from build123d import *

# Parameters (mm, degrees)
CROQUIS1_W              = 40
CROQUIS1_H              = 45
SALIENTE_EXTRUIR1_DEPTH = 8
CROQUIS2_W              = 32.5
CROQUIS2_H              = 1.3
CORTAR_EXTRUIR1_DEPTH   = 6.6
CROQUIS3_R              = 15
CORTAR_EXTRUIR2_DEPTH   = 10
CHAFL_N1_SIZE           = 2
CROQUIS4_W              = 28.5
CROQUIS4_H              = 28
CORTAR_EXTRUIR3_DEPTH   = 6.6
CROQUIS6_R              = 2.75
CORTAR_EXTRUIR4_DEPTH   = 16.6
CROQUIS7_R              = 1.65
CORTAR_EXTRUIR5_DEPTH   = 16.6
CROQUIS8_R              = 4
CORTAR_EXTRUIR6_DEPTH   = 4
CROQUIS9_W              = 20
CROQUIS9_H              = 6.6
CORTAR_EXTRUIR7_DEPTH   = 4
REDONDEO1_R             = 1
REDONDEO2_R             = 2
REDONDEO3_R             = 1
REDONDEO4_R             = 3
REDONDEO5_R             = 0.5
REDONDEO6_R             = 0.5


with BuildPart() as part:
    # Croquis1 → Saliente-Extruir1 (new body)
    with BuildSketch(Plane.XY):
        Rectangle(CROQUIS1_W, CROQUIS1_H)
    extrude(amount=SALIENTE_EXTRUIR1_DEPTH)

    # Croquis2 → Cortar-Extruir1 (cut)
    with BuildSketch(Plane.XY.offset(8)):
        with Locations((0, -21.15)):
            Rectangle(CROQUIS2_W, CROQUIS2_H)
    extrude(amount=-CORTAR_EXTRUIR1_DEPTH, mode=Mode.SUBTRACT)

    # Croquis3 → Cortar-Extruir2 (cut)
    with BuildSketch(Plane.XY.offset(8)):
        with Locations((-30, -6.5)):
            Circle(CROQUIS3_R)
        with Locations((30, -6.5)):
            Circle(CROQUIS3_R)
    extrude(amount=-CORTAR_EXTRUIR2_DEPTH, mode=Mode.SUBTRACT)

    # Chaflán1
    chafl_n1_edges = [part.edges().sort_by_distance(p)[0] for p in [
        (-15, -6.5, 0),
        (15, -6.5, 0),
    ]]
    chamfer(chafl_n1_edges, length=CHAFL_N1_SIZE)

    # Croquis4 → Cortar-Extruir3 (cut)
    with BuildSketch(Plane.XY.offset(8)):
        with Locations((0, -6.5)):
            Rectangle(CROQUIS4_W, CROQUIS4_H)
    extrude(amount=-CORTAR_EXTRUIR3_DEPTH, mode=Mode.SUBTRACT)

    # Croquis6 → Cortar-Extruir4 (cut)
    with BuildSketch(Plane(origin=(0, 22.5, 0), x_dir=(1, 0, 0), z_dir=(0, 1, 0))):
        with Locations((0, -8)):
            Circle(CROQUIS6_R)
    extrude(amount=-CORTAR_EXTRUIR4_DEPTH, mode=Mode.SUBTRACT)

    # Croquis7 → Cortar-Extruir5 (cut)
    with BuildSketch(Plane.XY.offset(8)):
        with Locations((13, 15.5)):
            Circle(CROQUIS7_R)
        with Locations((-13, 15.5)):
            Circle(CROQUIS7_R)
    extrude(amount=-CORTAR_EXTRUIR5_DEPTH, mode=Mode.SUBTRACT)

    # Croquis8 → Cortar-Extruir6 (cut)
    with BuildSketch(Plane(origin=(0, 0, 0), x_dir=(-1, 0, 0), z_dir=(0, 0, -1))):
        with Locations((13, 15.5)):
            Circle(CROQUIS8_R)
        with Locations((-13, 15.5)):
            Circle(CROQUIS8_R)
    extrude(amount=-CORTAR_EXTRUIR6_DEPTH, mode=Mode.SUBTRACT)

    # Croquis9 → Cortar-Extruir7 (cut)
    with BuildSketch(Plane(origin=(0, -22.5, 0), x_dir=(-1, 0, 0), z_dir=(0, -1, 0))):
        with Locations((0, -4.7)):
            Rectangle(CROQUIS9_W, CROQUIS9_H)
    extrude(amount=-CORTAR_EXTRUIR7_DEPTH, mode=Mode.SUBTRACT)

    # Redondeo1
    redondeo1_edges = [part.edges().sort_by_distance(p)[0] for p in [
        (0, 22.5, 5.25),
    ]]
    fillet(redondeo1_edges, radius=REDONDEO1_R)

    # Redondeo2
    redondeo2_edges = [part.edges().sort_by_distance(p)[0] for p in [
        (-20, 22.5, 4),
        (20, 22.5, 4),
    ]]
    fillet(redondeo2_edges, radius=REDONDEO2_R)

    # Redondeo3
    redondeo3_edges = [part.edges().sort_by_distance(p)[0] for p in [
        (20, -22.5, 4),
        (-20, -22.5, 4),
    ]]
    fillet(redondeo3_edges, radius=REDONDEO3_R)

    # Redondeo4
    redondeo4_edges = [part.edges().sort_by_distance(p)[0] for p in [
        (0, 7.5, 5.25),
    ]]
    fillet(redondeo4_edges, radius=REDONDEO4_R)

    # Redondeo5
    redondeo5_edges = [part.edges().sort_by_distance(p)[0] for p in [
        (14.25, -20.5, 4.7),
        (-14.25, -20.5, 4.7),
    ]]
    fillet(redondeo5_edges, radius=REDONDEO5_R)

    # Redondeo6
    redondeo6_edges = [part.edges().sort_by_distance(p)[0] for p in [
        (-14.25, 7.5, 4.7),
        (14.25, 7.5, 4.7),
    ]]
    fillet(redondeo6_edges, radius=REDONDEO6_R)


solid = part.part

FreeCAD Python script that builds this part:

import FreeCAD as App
import Part
import Sketcher
from FreeCAD import Vector
Q = App.Units.Quantity


def edges_at(feature, points):
    """Names of the edges that pass closest to the given points."""
    edges = feature.Shape.Edges
    near = lambda p: min(range(len(edges)), key=lambda i: edges[i].distToShape(Part.Vertex(*p))[0])
    return sorted({f"Edge{near(p) + 1}" for p in points})


def add_polygon(sketch, points):
    """Adds a closed chain of lines whose ends are joined by coincident constraints."""
    first, n = sketch.GeometryCount, len(points)
    for a, b in zip(points, points[1:] + points[:1]):
        sketch.addGeometry(Part.LineSegment(App.Vector(*a, 0), App.Vector(*b, 0)), False)
    for i in range(n):
        sketch.addConstraint(Sketcher.Constraint("Coincident", first + i, 2, first + (i + 1) % n, 1))

doc = App.newDocument("Part")
body = doc.addObject("PartDesign::Body", "Body")

# Sketch on XY plane
sketch1 = body.newObject("Sketcher::SketchObject", "Sketch")
sketch1.AttachmentSupport = (doc.getObject("XY_Plane"), [""])
sketch1.MapMode = "FlatFace"
add_polygon(sketch1, [(-20, 22), (-20, -22), (20, -22), (20, 22)])  # lines 0-3
sketch1.addConstraint([
    Sketcher.Constraint("Vertical", 0),
    Sketcher.Constraint("Horizontal", 1),
    Sketcher.Constraint("Vertical", 2),
    Sketcher.Constraint("Horizontal", 3),
    Sketcher.Constraint("Symmetric", 0, 2, 2, 2, -1, 1),
    Sketcher.Constraint("DistanceX", 1, 1, 1, 2, Q("40 mm")),
    Sketcher.Constraint("DistanceY", 0, 2, 0, 1, Q("45 mm")),
])
pad1 = body.newObject("PartDesign::Pad", "Pad")
pad1.Profile = sketch1
pad1.Length = 8

# Sketch on XY plane
sketch2 = body.newObject("Sketcher::SketchObject", "Sketch001")
sketch2.AttachmentSupport = (doc.getObject("XY_Plane"), [""])
sketch2.MapMode = "FlatFace"
sketch2.AttachmentOffset = App.Placement(Vector(0, 0, 8), App.Rotation())
add_polygon(sketch2, [(-16.2, -20.5), (-16.2, -21.8), (16.2, -21.8), (16.2, -20.5)])  # lines 0-3
sketch2.addConstraint([
    Sketcher.Constraint("Vertical", 0),
    Sketcher.Constraint("Horizontal", 1),
    Sketcher.Constraint("Vertical", 2),
    Sketcher.Constraint("Horizontal", 3),
    Sketcher.Constraint("DistanceX", 1, 1, 1, 2, Q("32.5 mm")),
    Sketcher.Constraint("DistanceY", 0, 2, 0, 1, Q("1.3 mm")),
    Sketcher.Constraint("DistanceY", 0, 2, -1, 1, Q("21.8 mm")),
    Sketcher.Constraint("DistanceX", 0, 2, -1, 1, Q("16.25 mm")),
])
pocket1 = body.newObject("PartDesign::Pocket", "Pocket")
pocket1.Profile = sketch2
pocket1.Length = 6.6

# Sketch on XY plane
sketch3 = body.newObject("Sketcher::SketchObject", "Sketch002")
sketch3.AttachmentSupport = (doc.getObject("XY_Plane"), [""])
sketch3.MapMode = "FlatFace"
sketch3.AttachmentOffset = App.Placement(Vector(0, 0, 8), App.Rotation())
sketch3.addGeometry([
    Part.Circle(Vector(-30, -6, 0), Vector(0, 0, 1), 15),
    Part.Circle(Vector(30, -6, 0), Vector(0, 0, 1), 15),
], False)
sketch3.addConstraint([
    Sketcher.Constraint("Equal", 0, 1),
    Sketcher.Constraint("Symmetric", 0, 3, 1, 3, -2),
    Sketcher.Constraint("Diameter", 0, Q("30 mm")),
    Sketcher.Constraint("DistanceX", 0, 3, -1, 1, Q("30 mm")),
    Sketcher.Constraint("DistanceY", 0, 3, -1, 1, Q("6.5 mm")),
])
pocket2 = body.newObject("PartDesign::Pocket", "Pocket001")
pocket2.Profile = sketch3
pocket2.Length = 10
doc.recompute()

chamfer = body.newObject("PartDesign::Chamfer", "Chamfer")
chamfer.Base = (pocket2, edges_at(pocket2, [(-15, -6.5, 0), (15, -6.5, 0)]))
chamfer.Size = 2

# Sketch on XY plane
sketch4 = body.newObject("Sketcher::SketchObject", "Sketch003")
sketch4.AttachmentSupport = (doc.getObject("XY_Plane"), [""])
sketch4.MapMode = "FlatFace"
sketch4.AttachmentOffset = App.Placement(Vector(0, 0, 8), App.Rotation())
add_polygon(sketch4, [(-14, 8), (-14, -20), (14, -20), (14, 8)])  # lines 0-3
sketch4.addConstraint([
    Sketcher.Constraint("Vertical", 0),
    Sketcher.Constraint("Horizontal", 1),
    Sketcher.Constraint("Vertical", 2),
    Sketcher.Constraint("Horizontal", 3),
    Sketcher.Constraint("DistanceY", 0, 2, 0, 1, Q("28 mm")),
    Sketcher.Constraint("DistanceX", 1, 1, 1, 2, Q("28.5 mm")),
    Sketcher.Constraint("DistanceY", 0, 2, -1, 1, Q("20.5 mm")),
    Sketcher.Constraint("DistanceX", 0, 2, -1, 1, Q("14.25 mm")),
])
pocket3 = body.newObject("PartDesign::Pocket", "Pocket002")
pocket3.Profile = sketch4
pocket3.Length = 6.6

# Sketch on XZ plane
sketch5 = body.newObject("Sketcher::SketchObject", "Sketch004")
sketch5.AttachmentSupport = (doc.getObject("XZ_Plane"), [""])
sketch5.MapMode = "FlatFace"
sketch5.AttachmentOffset = App.Placement(Vector(0, 0, -22.5), App.Rotation())
sketch5.addGeometry(Part.Circle(Vector(0, 8, 0), Vector(0, 0, 1), 2.8), False)
sketch5.addConstraint([
    Sketcher.Constraint("PointOnObject", 0, 3, -2),
    Sketcher.Constraint("Diameter", 0, Q("5.5 mm")),
    Sketcher.Constraint("DistanceY", -1, 1, 0, 3, Q("8 mm")),
])
pocket4 = body.newObject("PartDesign::Pocket", "Pocket003")
pocket4.Profile = sketch5
pocket4.Length = 16.6
pocket4.Reversed = True

# Sketch on XY plane
sketch6 = body.newObject("Sketcher::SketchObject", "Sketch005")
sketch6.AttachmentSupport = (doc.getObject("XY_Plane"), [""])
sketch6.MapMode = "FlatFace"
sketch6.AttachmentOffset = App.Placement(Vector(0, 0, 8), App.Rotation())
sketch6.addGeometry([
    Part.Circle(Vector(13, 15.5, 0), Vector(0, 0, 1), 1.6),
    Part.Circle(Vector(-13, 15.5, 0), Vector(0, 0, 1), 1.6),
], False)
sketch6.addConstraint([
    Sketcher.Constraint("Equal", 0, 1),
    Sketcher.Constraint("Symmetric", 0, 3, 1, 3, -2),
    Sketcher.Constraint("Diameter", 0, Q("3.3 mm")),
    Sketcher.Constraint("DistanceX", -1, 1, 0, 3, Q("13 mm")),
    Sketcher.Constraint("DistanceY", -1, 1, 0, 3, Q("15.5 mm")),
])
pocket5 = body.newObject("PartDesign::Pocket", "Pocket004")
pocket5.Profile = sketch6
pocket5.Length = 16.6

# Sketch on XY plane
sketch7 = body.newObject("Sketcher::SketchObject", "Sketch006")
sketch7.AttachmentSupport = (doc.getObject("XY_Plane"), [""])
sketch7.MapMode = "FlatFace"
sketch7.addGeometry([
    Part.Circle(Vector(-13, 15.5, 0), Vector(0, 0, 1), 4),
    Part.Circle(Vector(13, 15.5, 0), Vector(0, 0, 1), 4),
], False)
sketch7.addConstraint([
    Sketcher.Constraint("Equal", 0, 1),
    Sketcher.Constraint("Symmetric", 0, 3, 1, 3, -2),
    Sketcher.Constraint("Diameter", 0, Q("8 mm")),
    Sketcher.Constraint("DistanceX", 0, 3, -1, 1, Q("13 mm")),
    Sketcher.Constraint("DistanceY", -1, 1, 0, 3, Q("15.5 mm")),
])
pocket6 = body.newObject("PartDesign::Pocket", "Pocket005")
pocket6.Profile = sketch7
pocket6.Length = 4
pocket6.Reversed = True

# Sketch on XZ plane
sketch8 = body.newObject("Sketcher::SketchObject", "Sketch007")
sketch8.AttachmentSupport = (doc.getObject("XZ_Plane"), [""])
sketch8.MapMode = "FlatFace"
sketch8.AttachmentOffset = App.Placement(Vector(0, 0, 22.5), App.Rotation())
add_polygon(sketch8, [(10, 1), (10, 8), (-10, 8), (-10, 1)])  # lines 0-3
sketch8.addConstraint([
    Sketcher.Constraint("Vertical", 0),
    Sketcher.Constraint("Horizontal", 1),
    Sketcher.Constraint("Vertical", 2),
    Sketcher.Constraint("Horizontal", 3),
    Sketcher.Constraint("DistanceX", 1, 2, 1, 1, Q("20 mm")),
    Sketcher.Constraint("DistanceY", 0, 1, 0, 2, Q("6.6 mm")),
    Sketcher.Constraint("DistanceX", -1, 1, 0, 2, Q("10 mm")),
    Sketcher.Constraint("DistanceY", -1, 1, 0, 2, Q("8 mm")),
])
pocket7 = body.newObject("PartDesign::Pocket", "Pocket006")
pocket7.Profile = sketch8
pocket7.Length = 4
doc.recompute()

fillet = body.newObject("PartDesign::Fillet", "Fillet")
fillet.Base = (pocket7, edges_at(pocket7, [(0, 22.5, 5.25)]))
fillet.Radius = 1
doc.recompute()

fillet2 = body.newObject("PartDesign::Fillet", "Fillet001")
fillet2.Base = (fillet, edges_at(fillet, [(-20, 22.5, 4), (20, 22.5, 4)]))
fillet2.Radius = 2
doc.recompute()

fillet3 = body.newObject("PartDesign::Fillet", "Fillet002")
fillet3.Base = (fillet2, edges_at(fillet2, [(20, -22.5, 4), (-20, -22.5, 4)]))
fillet3.Radius = 1
doc.recompute()

fillet4 = body.newObject("PartDesign::Fillet", "Fillet003")
fillet4.Base = (fillet3, edges_at(fillet3, [(0, 7.5, 5.25)]))
fillet4.Radius = 3
doc.recompute()

fillet5 = body.newObject("PartDesign::Fillet", "Fillet004")
fillet5.Base = (fillet4, edges_at(fillet4, [(14.25, -20.5, 4.7), (-14.25, -20.5, 4.7)]))
fillet5.Radius = 0.5
doc.recompute()

fillet6 = body.newObject("PartDesign::Fillet", "Fillet005")
fillet6.Base = (fillet5, edges_at(fillet5, [(-14.25, 7.5, 4.7), (14.25, 7.5, 4.7)]))
fillet6.Radius = 0.5

doc.recompute()
